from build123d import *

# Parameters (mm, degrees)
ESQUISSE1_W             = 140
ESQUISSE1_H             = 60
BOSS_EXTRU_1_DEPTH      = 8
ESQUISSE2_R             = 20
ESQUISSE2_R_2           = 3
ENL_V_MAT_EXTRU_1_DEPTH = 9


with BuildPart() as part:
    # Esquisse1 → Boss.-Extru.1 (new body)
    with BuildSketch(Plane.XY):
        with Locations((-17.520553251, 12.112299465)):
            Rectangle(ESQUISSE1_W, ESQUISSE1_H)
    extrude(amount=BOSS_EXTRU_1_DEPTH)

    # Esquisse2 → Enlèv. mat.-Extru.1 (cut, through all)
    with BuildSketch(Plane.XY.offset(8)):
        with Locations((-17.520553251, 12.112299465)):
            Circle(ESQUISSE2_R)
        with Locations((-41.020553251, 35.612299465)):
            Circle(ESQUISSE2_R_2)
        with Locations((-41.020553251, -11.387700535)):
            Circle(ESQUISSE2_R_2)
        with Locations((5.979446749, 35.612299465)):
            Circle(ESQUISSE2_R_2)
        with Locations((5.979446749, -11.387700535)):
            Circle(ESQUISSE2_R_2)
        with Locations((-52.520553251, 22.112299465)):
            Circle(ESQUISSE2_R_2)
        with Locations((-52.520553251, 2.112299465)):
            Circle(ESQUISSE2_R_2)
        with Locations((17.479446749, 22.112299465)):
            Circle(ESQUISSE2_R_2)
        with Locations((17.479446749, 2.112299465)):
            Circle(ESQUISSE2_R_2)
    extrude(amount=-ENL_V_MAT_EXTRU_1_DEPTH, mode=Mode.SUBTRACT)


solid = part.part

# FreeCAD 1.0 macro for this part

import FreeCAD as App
import Part
import Sketcher
from FreeCAD import Vector

doc = App.newDocument("Part")
body = doc.addObject("PartDesign::Body", "Body")

# Sketch on XY plane
sketch1 = doc.addObject("Sketcher::SketchObject", "Sketch")
body.addObject(sketch1)
sketch1.AttachmentSupport = (doc.XY_Plane, [""])
sketch1.MapMode = "FlatFace"
sketch1.addGeometry(Part.LineSegment(Vector(-88, 42, 0), Vector(-88, -18, 0)), False)
sketch1.addGeometry(Part.LineSegment(Vector(-88, -18, 0), Vector(52, -18, 0)), False)
sketch1.addGeometry(Part.LineSegment(Vector(52, -18, 0), Vector(52, 42, 0)), False)
sketch1.addGeometry(Part.LineSegment(Vector(52, 42, 0), Vector(-88, 42, 0)), False)
sketch1.addConstraint(Sketcher.Constraint("Coincident", 0, 2, 1, 1))
sketch1.addConstraint(Sketcher.Constraint("Coincident", 1, 2, 2, 1))
sketch1.addConstraint(Sketcher.Constraint("Coincident", 2, 2, 3, 1))
sketch1.addConstraint(Sketcher.Constraint("Coincident", 3, 2, 0, 1))
sketch1.addConstraint(Sketcher.Constraint("Vertical", 0))
sketch1.addConstraint(Sketcher.Constraint("Horizontal", 1))
sketch1.addConstraint(Sketcher.Constraint("Vertical", 2))
sketch1.addConstraint(Sketcher.Constraint("Horizontal", 3))
sketch1.addConstraint(Sketcher.Constraint("DistanceX", 1, 1, 1, 2, 140.0))
sketch1.addConstraint(Sketcher.Constraint("DistanceY", 0, 2, 0, 1, 60.0))
sketch1.addConstraint(Sketcher.Constraint("DistanceY", 0, 2, -1, 1, 17.887701))
sketch1.addConstraint(Sketcher.Constraint("DistanceX", 0, 2, -1, 1, 87.520553))
pad1 = doc.addObject("PartDesign::Pad", "Pad")
body.addObject(pad1)
pad1.Profile = sketch1
pad1.Length = 8

# Sketch on XY plane
sketch2 = doc.addObject("Sketcher::SketchObject", "Sketch001")
body.addObject(sketch2)
sketch2.AttachmentSupport = (doc.XY_Plane, [""])
sketch2.MapMode = "FlatFace"
sketch2.AttachmentOffset = App.Placement(Vector(0, 0, 8), App.Rotation())
sketch2.addGeometry(Part.Circle(Vector(-17.5, 12.1, 0), Vector(0, 0, 1), 20), False)
sketch2.addGeometry(Part.Circle(Vector(-41, 35.6, 0), Vector(0, 0, 1), 3), False)
sketch2.addGeometry(Part.Circle(Vector(-41, -11.4, 0), Vector(0, 0, 1), 3), False)
sketch2.addGeometry(Part.Circle(Vector(6, 35.6, 0), Vector(0, 0, 1), 3), False)
sketch2.addGeometry(Part.Circle(Vector(6, -11.4, 0), Vector(0, 0, 1), 3), False)
sketch2.addGeometry(Part.Circle(Vector(-52.5, 22.1, 0), Vector(0, 0, 1), 3), False)
sketch2.addGeometry(Part.Circle(Vector(-52.5, 2.1, 0), Vector(0, 0, 1), 3), False)
sketch2.addGeometry(Part.Circle(Vector(17.5, 22.1, 0), Vector(0, 0, 1), 3), False)
sketch2.addGeometry(Part.Circle(Vector(17.5, 2.1, 0), Vector(0, 0, 1), 3), False)
sketch2.addConstraint(Sketcher.Constraint("Equal", 1, 2))
sketch2.addConstraint(Sketcher.Constraint("Equal", 2, 3))
sketch2.addConstraint(Sketcher.Constraint("Equal", 3, 4))
sketch2.addConstraint(Sketcher.Constraint("Equal", 4, 5))
sketch2.addConstraint(Sketcher.Constraint("Equal", 5, 6))
sketch2.addConstraint(Sketcher.Constraint("Equal", 6, 7))
sketch2.addConstraint(Sketcher.Constraint("Equal", 7, 8))
sketch2.addConstraint(Sketcher.Constraint("Horizontal", 1, 3, 3, 3))
sketch2.addConstraint(Sketcher.Constraint("Horizontal", 2, 3, 4, 3))
sketch2.addConstraint(Sketcher.Constraint("Horizontal", 5, 3, 7, 3))
sketch2.addConstraint(Sketcher.Constraint("Horizontal", 6, 3, 8, 3))
sketch2.addConstraint(Sketcher.Constraint("Vertical", 1, 3, 2, 3))
sketch2.addConstraint(Sketcher.Constraint("Vertical", 3, 3, 4, 3))
sketch2.addConstraint(Sketcher.Constraint("Vertical", 5, 3, 6, 3))
sketch2.addConstraint(Sketcher.Constraint("Vertical", 7, 3, 8, 3))
sketch2.addConstraint(Sketcher.Constraint("Diameter", 0, 40.0))
sketch2.addConstraint(Sketcher.Constraint("Diameter", 1, 6.0))
sketch2.addConstraint(Sketcher.Constraint("DistanceY", 2, 3, 1, 3, 47.0))
sketch2.addConstraint(Sketcher.Constraint("DistanceX", 1, 3, 3, 3, 47.0))
sketch2.addConstraint(Sketcher.Constraint("DistanceX", 5, 3, 0, 3, 35.0))
sketch2.addConstraint(Sketcher.Constraint("DistanceY", 0, 3, 5, 3, 10.0))
sketch2.addConstraint(Sketcher.Constraint("DistanceY", 6, 3, 5, 3, 20.0))
sketch2.addConstraint(Sketcher.Constraint("DistanceX", 0, 3, 7, 3, 35.0))
sketch2.addConstraint(Sketcher.Constraint("DistanceX", 1, 3, 0, 3, 23.5))
sketch2.addConstraint(Sketcher.Constraint("DistanceY", 0, 3, 1, 3, 23.5))
sketch2.addConstraint(Sketcher.Constraint("DistanceY", -1, 1, 0, 3, 12.112299))
sketch2.addConstraint(Sketcher.Constraint("DistanceX", 0, 3, -1, 1, 17.520553))
pocket1 = doc.addObject("PartDesign::Pocket", "Pocket")
body.addObject(pocket1)
pocket1.Profile = sketch2
pocket1.Type = "ThroughAll"

doc.recompute()
